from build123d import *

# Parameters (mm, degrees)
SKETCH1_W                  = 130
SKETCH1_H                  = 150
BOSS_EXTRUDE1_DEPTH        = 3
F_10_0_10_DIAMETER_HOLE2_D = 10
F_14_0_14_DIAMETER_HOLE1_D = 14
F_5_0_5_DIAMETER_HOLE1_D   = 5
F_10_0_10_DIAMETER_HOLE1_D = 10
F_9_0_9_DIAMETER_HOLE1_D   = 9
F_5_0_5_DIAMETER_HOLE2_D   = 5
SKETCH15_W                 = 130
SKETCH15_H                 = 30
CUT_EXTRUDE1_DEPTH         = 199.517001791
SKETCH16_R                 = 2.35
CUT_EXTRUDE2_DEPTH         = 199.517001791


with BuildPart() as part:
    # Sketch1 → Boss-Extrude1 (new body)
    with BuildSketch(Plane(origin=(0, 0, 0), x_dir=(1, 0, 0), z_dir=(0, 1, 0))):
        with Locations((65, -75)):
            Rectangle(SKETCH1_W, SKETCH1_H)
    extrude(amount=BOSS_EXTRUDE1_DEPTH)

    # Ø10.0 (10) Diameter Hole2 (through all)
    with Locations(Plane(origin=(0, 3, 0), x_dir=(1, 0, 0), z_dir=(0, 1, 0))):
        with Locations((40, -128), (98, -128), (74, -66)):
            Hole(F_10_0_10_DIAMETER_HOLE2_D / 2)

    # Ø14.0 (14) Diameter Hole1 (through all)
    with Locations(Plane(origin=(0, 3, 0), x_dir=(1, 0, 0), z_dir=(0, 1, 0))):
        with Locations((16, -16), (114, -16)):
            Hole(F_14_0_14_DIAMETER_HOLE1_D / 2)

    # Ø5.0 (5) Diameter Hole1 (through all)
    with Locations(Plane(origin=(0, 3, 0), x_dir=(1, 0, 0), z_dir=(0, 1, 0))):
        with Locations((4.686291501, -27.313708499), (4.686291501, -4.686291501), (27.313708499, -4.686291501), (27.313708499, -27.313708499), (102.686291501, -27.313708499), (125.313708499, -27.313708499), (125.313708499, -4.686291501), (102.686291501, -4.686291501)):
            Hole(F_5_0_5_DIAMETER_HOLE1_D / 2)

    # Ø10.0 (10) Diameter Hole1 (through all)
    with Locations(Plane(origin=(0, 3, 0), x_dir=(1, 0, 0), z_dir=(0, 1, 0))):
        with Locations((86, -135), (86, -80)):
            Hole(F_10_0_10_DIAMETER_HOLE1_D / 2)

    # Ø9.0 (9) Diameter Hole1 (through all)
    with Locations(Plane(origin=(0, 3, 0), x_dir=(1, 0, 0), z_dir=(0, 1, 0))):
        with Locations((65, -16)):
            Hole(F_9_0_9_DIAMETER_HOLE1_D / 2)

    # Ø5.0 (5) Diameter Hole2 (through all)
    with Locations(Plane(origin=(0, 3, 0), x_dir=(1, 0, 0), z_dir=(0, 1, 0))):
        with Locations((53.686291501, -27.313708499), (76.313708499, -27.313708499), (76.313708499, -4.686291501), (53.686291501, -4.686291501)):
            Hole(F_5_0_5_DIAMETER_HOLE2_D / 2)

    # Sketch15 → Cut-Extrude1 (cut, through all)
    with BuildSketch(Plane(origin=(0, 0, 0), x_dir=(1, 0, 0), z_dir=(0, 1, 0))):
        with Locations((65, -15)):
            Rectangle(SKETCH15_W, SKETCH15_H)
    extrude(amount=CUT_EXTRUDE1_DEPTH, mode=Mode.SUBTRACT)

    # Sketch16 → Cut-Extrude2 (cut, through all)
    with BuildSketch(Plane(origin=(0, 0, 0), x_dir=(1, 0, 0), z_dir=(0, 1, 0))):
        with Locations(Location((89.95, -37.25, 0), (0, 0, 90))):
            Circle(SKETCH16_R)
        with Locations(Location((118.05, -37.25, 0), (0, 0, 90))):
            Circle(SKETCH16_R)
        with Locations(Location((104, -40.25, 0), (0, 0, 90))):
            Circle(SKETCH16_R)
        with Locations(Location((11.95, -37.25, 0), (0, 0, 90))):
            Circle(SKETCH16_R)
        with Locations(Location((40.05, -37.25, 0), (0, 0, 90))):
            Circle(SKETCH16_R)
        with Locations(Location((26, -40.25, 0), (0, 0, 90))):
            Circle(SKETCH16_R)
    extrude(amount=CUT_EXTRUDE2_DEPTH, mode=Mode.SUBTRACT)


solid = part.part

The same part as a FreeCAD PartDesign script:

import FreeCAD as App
import Part
import Sketcher
Q = App.Units.Quantity

doc = App.newDocument("Part")
body = doc.addObject("PartDesign::Body", "Body")

sketch1 = doc.addObject("Sketcher::SketchObject", "Sketch")
body.addObject(sketch1)
sketch1.AttachmentSupport = (doc.XZ_Plane, [""])
sketch1.MapMode = "FlatFace"
sketch1.addGeometry([
    Part.LineSegment(App.Vector(0, 0, 0), App.Vector(0, 150, 0)),
    Part.LineSegment(App.Vector(0, 150, 0), App.Vector(130, 150, 0)),
    Part.LineSegment(App.Vector(130, 150, 0), App.Vector(130, 0, 0)),
    Part.LineSegment(App.Vector(130, 0, 0), App.Vector(0, 0, 0)),
], False)
sketch1.addConstraint([
    Sketcher.Constraint("Coincident", 0, 2, 1, 1),
    Sketcher.Constraint("Coincident", 1, 2, 2, 1),
    Sketcher.Constraint("Coincident", 2, 2, 3, 1),
    Sketcher.Constraint("Coincident", 3, 2, 0, 1),
    Sketcher.Constraint("Vertical", 0),
    Sketcher.Constraint("Horizontal", 1),
    Sketcher.Constraint("Vertical", 2),
    Sketcher.Constraint("Horizontal", 3),
    Sketcher.Constraint("Coincident", 3, 2, -1, 1),
    Sketcher.Constraint("DistanceX", 1, 1, 1, 2, Q("130 mm")),
    Sketcher.Constraint("DistanceY", 0, 1, 0, 2, Q("150 mm")),
])
pad1 = doc.addObject("PartDesign::Pad", "Pad")
body.addObject(pad1)
pad1.Profile = sketch1
pad1.Length = 3
pad1.Reversed = True

sketch2 = doc.addObject("Sketcher::SketchObject", "Sketch001")
body.addObject(sketch2)
sketch2.AttachmentSupport = (doc.XZ_Plane, [""])
sketch2.MapMode = "FlatFace"
sketch2.AttachmentOffset = App.Placement(App.Vector(0, 0, -3), App.Rotation())
sketch2.addGeometry([
    Part.Circle(App.Vector(40, 128, 0), App.Vector(0, 0, 1), 5),
    Part.Circle(App.Vector(98, 128, 0), App.Vector(0, 0, 1), 5),
    Part.Circle(App.Vector(74, 66, 0), App.Vector(0, 0, 1), 5),
], False)
sketch2.addConstraint([
    Sketcher.Constraint("Equal", 0, 1),
    Sketcher.Constraint("Equal", 1, 2),
    Sketcher.Constraint("Horizontal", 0, 3, 1, 3),
    Sketcher.Constraint("Diameter", 0, Q("10 mm")),
    Sketcher.Constraint("DistanceX", -1, 1, 0, 3, Q("40 mm")),
    Sketcher.Constraint("DistanceY", -1, 1, 0, 3, Q("128 mm")),
    Sketcher.Constraint("DistanceX", -1, 1, 1, 3, Q("98 mm")),
    Sketcher.Constraint("DistanceX", -1, 1, 2, 3, Q("74 mm")),
    Sketcher.Constraint("DistanceY", -1, 1, 2, 3, Q("66 mm")),
])
doc.recompute()
hole = doc.addObject("PartDesign::Hole", "Hole")
body.addObject(hole)
hole.Profile = sketch2
hole.ThreadType = "None"
hole.Diameter = 10
hole.DepthType = "ThroughAll"
hole.Reversed = True

sketch3 = doc.addObject("Sketcher::SketchObject", "Sketch002")
body.addObject(sketch3)
sketch3.AttachmentSupport = (doc.XZ_Plane, [""])
sketch3.MapMode = "FlatFace"
sketch3.AttachmentOffset = App.Placement(App.Vector(0, 0, -3), App.Rotation())
sketch3.addGeometry([
    Part.Circle(App.Vector(16, 16, 0), App.Vector(0, 0, 1), 7),
    Part.Circle(App.Vector(114, 16, 0), App.Vector(0, 0, 1), 7),
], False)
sketch3.addConstraint([
    Sketcher.Constraint("Equal", 0, 1),
    Sketcher.Constraint("Horizontal", 0, 3, 1, 3),
    Sketcher.Constraint("Diameter", 0, Q("14 mm")),
    Sketcher.Constraint("DistanceX", -1, 1, 0, 3, Q("16 mm")),
    Sketcher.Constraint("DistanceY", -1, 1, 0, 3, Q("16 mm")),
    Sketcher.Constraint("DistanceX", -1, 1, 1, 3, Q("114 mm")),
])
doc.recompute()
hole2 = doc.addObject("PartDesign::Hole", "Hole001")
body.addObject(hole2)
hole2.Profile = sketch3
hole2.ThreadType = "None"
hole2.Diameter = 14
hole2.DepthType = "ThroughAll"
hole2.Reversed = True

sketch4 = doc.addObject("Sketcher::SketchObject", "Sketch003")
body.addObject(sketch4)
sketch4.AttachmentSupport = (doc.XZ_Plane, [""])
sketch4.MapMode = "FlatFace"
sketch4.AttachmentOffset = App.Placement(App.Vector(0, 0, -3), App.Rotation())
sketch4.addGeometry([
    Part.Circle(App.Vector(4.686292, 27.313708, 0), App.Vector(0, 0, 1), 2.5),
    Part.Circle(App.Vector(4.686292, 4.686292, 0), App.Vector(0, 0, 1), 2.5),
    Part.Circle(App.Vector(27.313708, 4.686292, 0), App.Vector(0, 0, 1), 2.5),
    Part.Circle(App.Vector(27.313708, 27.313708, 0), App.Vector(0, 0, 1), 2.5),
    Part.Circle(App.Vector(102.686292, 27.313708, 0), App.Vector(0, 0, 1), 2.5),
    Part.Circle(App.Vector(125.313708, 27.313708, 0), App.Vector(0, 0, 1), 2.5),
    Part.Circle(App.Vector(125.313708, 4.686292, 0), App.Vector(0, 0, 1), 2.5),
    Part.Circle(App.Vector(102.686292, 4.686292, 0), App.Vector(0, 0, 1), 2.5),
], False)
sketch4.addConstraint([
    Sketcher.Constraint("Equal", 0, 1),
    Sketcher.Constraint("Equal", 1, 2),
    Sketcher.Constraint("Equal", 2, 3),
    Sketcher.Constraint("Equal", 3, 4),
    Sketcher.Constraint("Equal", 4, 5),
    Sketcher.Constraint("Equal", 5, 6),
    Sketcher.Constraint("Equal", 6, 7),
    Sketcher.Constraint("Horizontal", 1, 3, 2, 3),
    Sketcher.Constraint("Horizontal", 0, 3, 3, 3),
    Sketcher.Constraint("Horizontal", 3, 3, 4, 3),
    Sketcher.Constraint("Horizontal", 4, 3, 5, 3),
    Sketcher.Constraint("Horizontal", 2, 3, 6, 3),
    Sketcher.Constraint("Horizontal", 6, 3, 7, 3),
    Sketcher.Constraint("Vertical", 0, 3, 1, 3),
    Sketcher.Constraint("Vertical", 2, 3, 3, 3),
    Sketcher.Constraint("Vertical", 5, 3, 6, 3),
    Sketcher.Constraint("Vertical", 4, 3, 7, 3),
    Sketcher.Constraint("Diameter", 0, Q("5 mm")),
    Sketcher.Constraint("DistanceX", 0, 3, 4, 3, Q("98 mm")),
    Sketcher.Constraint("DistanceX", 3, 3, 5, 3, Q("98 mm")),
    Sketcher.Constraint("DistanceX", -1, 1, 0, 3, Q("4.686292 mm")),
    Sketcher.Constraint("DistanceY", -1, 1, 0, 3, Q("27.313708 mm")),
    Sketcher.Constraint("DistanceY", -1, 1, 1, 3, Q("4.686292 mm")),
    Sketcher.Constraint("DistanceX", -1, 1, 2, 3, Q("27.313708 mm")),
])
doc.recompute()
hole3 = doc.addObject("PartDesign::Hole", "Hole002")
body.addObject(hole3)
hole3.Profile = sketch4
hole3.ThreadType = "None"
hole3.Diameter = 5
hole3.DepthType = "ThroughAll"
hole3.Reversed = True

sketch5 = doc.addObject("Sketcher::SketchObject", "Sketch004")
body.addObject(sketch5)
sketch5.AttachmentSupport = (doc.XZ_Plane, [""])
sketch5.MapMode = "FlatFace"
sketch5.AttachmentOffset = App.Placement(App.Vector(0, 0, -3), App.Rotation())
sketch5.addGeometry([
    Part.Circle(App.Vector(86, 135, 0), App.Vector(0, 0, 1), 5),
    Part.Circle(App.Vector(86, 80, 0), App.Vector(0, 0, 1), 5),
], False)
sketch5.addConstraint([
    Sketcher.Constraint("Equal", 0, 1),
    Sketcher.Constraint("Vertical", 0, 3, 1, 3),
    Sketcher.Constraint("Diameter", 0, Q("10 mm")),
    Sketcher.Constraint("DistanceX", -1, 1, 0, 3, Q("86 mm")),
    Sketcher.Constraint("DistanceY", -1, 1, 0, 3, Q("135 mm")),
    Sketcher.Constraint("DistanceY", -1, 1, 1, 3, Q("80 mm")),
])
doc.recompute()
hole4 = doc.addObject("PartDesign::Hole", "Hole003")
body.addObject(hole4)
hole4.Profile = sketch5
hole4.ThreadType = "None"
hole4.Diameter = 10
hole4.DepthType = "ThroughAll"
hole4.Reversed = True

sketch6 = doc.addObject("Sketcher::SketchObject", "Sketch005")
body.addObject(sketch6)
sketch6.AttachmentSupport = (doc.XZ_Plane, [""])
sketch6.MapMode = "FlatFace"
sketch6.AttachmentOffset = App.Placement(App.Vector(0, 0, -3), App.Rotation())
sketch6.addGeometry(Part.Circle(App.Vector(65, 16, 0), App.Vector(0, 0, 1), 4.5), False)
sketch6.addConstraint([
    Sketcher.Constraint("Diameter", 0, Q("9 mm")),
    Sketcher.Constraint("DistanceX", -1, 1, 0, 3, Q("65 mm")),
    Sketcher.Constraint("DistanceY", -1, 1, 0, 3, Q("16 mm")),
])
doc.recompute()
hole5 = doc.addObject("PartDesign::Hole", "Hole004")
body.addObject(hole5)
hole5.Profile = sketch6
hole5.ThreadType = "None"
hole5.Diameter = 9
hole5.DepthType = "ThroughAll"
hole5.Reversed = True

sketch7 = doc.addObject("Sketcher::SketchObject", "Sketch006")
body.addObject(sketch7)
sketch7.AttachmentSupport = (doc.XZ_Plane, [""])
sketch7.MapMode = "FlatFace"
sketch7.AttachmentOffset = App.Placement(App.Vector(0, 0, -3), App.Rotation())
sketch7.addGeometry([
    Part.Circle(App.Vector(53.686292, 27.313708, 0), App.Vector(0, 0, 1), 2.5),
    Part.Circle(App.Vector(76.313708, 27.313708, 0), App.Vector(0, 0, 1), 2.5),
    Part.Circle(App.Vector(76.313708, 4.686292, 0), App.Vector(0, 0, 1), 2.5),
    Part.Circle(App.Vector(53.686292, 4.686292, 0), App.Vector(0, 0, 1), 2.5),
], False)
sketch7.addConstraint([
    Sketcher.Constraint("Equal", 0, 1),
    Sketcher.Constraint("Equal", 1, 2),
    Sketcher.Constraint("Equal", 2, 3),
    Sketcher.Constraint("Horizontal", 0, 3, 1, 3),
    Sketcher.Constraint("Horizontal", 2, 3, 3, 3),
    Sketcher.Constraint("Vertical", 1, 3, 2, 3),
    Sketcher.Constraint("Vertical", 0, 3, 3, 3),
    Sketcher.Constraint("Diameter", 0, Q("5 mm")),
    Sketcher.Constraint("DistanceX", -1, 1, 0, 3, Q("53.686292 mm")),
    Sketcher.Constraint("DistanceY", -1, 1, 0, 3, Q("27.313708 mm")),
    Sketcher.Constraint("DistanceX", -1, 1, 1, 3, Q("76.313708 mm")),
    Sketcher.Constraint("DistanceY", -1, 1, 2, 3, Q("4.686292 mm")),
])
doc.recompute()
hole6 = doc.addObject("PartDesign::Hole", "Hole005")
body.addObject(hole6)
hole6.Profile = sketch7
hole6.ThreadType = "None"
hole6.Diameter = 5
hole6.DepthType = "ThroughAll"
hole6.Reversed = True

sketch8 = doc.addObject("Sketcher::SketchObject", "Sketch007")
body.addObject(sketch8)
sketch8.AttachmentSupport = (doc.XZ_Plane, [""])
sketch8.MapMode = "FlatFace"
sketch8.addGeometry([
    Part.LineSegment(App.Vector(0, 0, 0), App.Vector(0, 30, 0)),
    Part.LineSegment(App.Vector(0, 30, 0), App.Vector(130, 30, 0)),
    Part.LineSegment(App.Vector(130, 30, 0), App.Vector(130, 0, 0)),
    Part.LineSegment(App.Vector(130, 0, 0), App.Vector(0, 0, 0)),
], False)
sketch8.addConstraint([
    Sketcher.Constraint("Coincident", 0, 2, 1, 1),
    Sketcher.Constraint("Coincident", 1, 2, 2, 1),
    Sketcher.Constraint("Coincident", 2, 2, 3, 1),
    Sketcher.Constraint("Coincident", 3, 2, 0, 1),
    Sketcher.Constraint("Vertical", 0),
    Sketcher.Constraint("Horizontal", 1),
    Sketcher.Constraint("Vertical", 2),
    Sketcher.Constraint("Horizontal", 3),
    Sketcher.Constraint("Coincident", 3, 2, -1, 1),
    Sketcher.Constraint("DistanceX", 1, 1, 1, 2, Q("130 mm")),
    Sketcher.Constraint("DistanceY", 0, 1, 0, 2, Q("30 mm")),
])
pocket1 = doc.addObject("PartDesign::Pocket", "Pocket")
body.addObject(pocket1)
pocket1.Profile = sketch8
pocket1.Type = "ThroughAll"

sketch9 = doc.addObject("Sketcher::SketchObject", "Sketch008")
body.addObject(sketch9)
sketch9.AttachmentSupport = (doc.XZ_Plane, [""])
sketch9.MapMode = "FlatFace"
sketch9.addGeometry([
    Part.Circle(App.Vector(89.95, 37.25, 0), App.Vector(0, 0, 1), 2.35),
    Part.Circle(App.Vector(118.05, 37.25, 0), App.Vector(0, 0, 1), 2.35),
    Part.Circle(App.Vector(104, 40.25, 0), App.Vector(0, 0, 1), 2.35),
    Part.Circle(App.Vector(11.95, 37.25, 0), App.Vector(0, 0, 1), 2.35),
    Part.Circle(App.Vector(40.05, 37.25, 0), App.Vector(0, 0, 1), 2.35),
    Part.Circle(App.Vector(26, 40.25, 0), App.Vector(0, 0, 1), 2.35),
], False)
sketch9.addConstraint([
    Sketcher.Constraint("Equal", 0, 1),
    Sketcher.Constraint("Equal", 1, 2),
    Sketcher.Constraint("Equal", 2, 3),
    Sketcher.Constraint("Equal", 3, 4),
    Sketcher.Constraint("Equal", 4, 5),
    Sketcher.Constraint("Horizontal", 0, 3, 1, 3),
    Sketcher.Constraint("Horizontal", 1, 3, 3, 3),
    Sketcher.Constraint("Horizontal", 3, 3, 4, 3),
    Sketcher.Constraint("Horizontal", 2, 3, 5, 3),
    Sketcher.Constraint("Diameter", 0, Q("4.7 mm")),
    Sketcher.Constraint("DistanceX", -1, 1, 2, 3, Q("104 mm")),
    Sketcher.Constraint("DistanceX", -1, 1, 5, 3, Q("26 mm")),
    Sketcher.Constraint("DistanceY", 0, 3, 2, 3, Q("3 mm")),
    Sketcher.Constraint("DistanceX", 3, 3, 0, 3, Q("78 mm")),
    Sketcher.Constraint("DistanceX", 4, 3, 1, 3, Q("78 mm")),
    Sketcher.Constraint("DistanceX", 0, 3, 1, 3, Q("28.1 mm")),
    Sketcher.Constraint("DistanceX", -1, 1, 0, 3, Q("89.95 mm")),
    Sketcher.Constraint("DistanceY", -1, 1, 0, 3, Q("37.25 mm")),
])
pocket2 = doc.addObject("PartDesign::Pocket", "Pocket001")
body.addObject(pocket2)
pocket2.Profile = sketch9
pocket2.Type = "ThroughAll"

doc.recompute()
